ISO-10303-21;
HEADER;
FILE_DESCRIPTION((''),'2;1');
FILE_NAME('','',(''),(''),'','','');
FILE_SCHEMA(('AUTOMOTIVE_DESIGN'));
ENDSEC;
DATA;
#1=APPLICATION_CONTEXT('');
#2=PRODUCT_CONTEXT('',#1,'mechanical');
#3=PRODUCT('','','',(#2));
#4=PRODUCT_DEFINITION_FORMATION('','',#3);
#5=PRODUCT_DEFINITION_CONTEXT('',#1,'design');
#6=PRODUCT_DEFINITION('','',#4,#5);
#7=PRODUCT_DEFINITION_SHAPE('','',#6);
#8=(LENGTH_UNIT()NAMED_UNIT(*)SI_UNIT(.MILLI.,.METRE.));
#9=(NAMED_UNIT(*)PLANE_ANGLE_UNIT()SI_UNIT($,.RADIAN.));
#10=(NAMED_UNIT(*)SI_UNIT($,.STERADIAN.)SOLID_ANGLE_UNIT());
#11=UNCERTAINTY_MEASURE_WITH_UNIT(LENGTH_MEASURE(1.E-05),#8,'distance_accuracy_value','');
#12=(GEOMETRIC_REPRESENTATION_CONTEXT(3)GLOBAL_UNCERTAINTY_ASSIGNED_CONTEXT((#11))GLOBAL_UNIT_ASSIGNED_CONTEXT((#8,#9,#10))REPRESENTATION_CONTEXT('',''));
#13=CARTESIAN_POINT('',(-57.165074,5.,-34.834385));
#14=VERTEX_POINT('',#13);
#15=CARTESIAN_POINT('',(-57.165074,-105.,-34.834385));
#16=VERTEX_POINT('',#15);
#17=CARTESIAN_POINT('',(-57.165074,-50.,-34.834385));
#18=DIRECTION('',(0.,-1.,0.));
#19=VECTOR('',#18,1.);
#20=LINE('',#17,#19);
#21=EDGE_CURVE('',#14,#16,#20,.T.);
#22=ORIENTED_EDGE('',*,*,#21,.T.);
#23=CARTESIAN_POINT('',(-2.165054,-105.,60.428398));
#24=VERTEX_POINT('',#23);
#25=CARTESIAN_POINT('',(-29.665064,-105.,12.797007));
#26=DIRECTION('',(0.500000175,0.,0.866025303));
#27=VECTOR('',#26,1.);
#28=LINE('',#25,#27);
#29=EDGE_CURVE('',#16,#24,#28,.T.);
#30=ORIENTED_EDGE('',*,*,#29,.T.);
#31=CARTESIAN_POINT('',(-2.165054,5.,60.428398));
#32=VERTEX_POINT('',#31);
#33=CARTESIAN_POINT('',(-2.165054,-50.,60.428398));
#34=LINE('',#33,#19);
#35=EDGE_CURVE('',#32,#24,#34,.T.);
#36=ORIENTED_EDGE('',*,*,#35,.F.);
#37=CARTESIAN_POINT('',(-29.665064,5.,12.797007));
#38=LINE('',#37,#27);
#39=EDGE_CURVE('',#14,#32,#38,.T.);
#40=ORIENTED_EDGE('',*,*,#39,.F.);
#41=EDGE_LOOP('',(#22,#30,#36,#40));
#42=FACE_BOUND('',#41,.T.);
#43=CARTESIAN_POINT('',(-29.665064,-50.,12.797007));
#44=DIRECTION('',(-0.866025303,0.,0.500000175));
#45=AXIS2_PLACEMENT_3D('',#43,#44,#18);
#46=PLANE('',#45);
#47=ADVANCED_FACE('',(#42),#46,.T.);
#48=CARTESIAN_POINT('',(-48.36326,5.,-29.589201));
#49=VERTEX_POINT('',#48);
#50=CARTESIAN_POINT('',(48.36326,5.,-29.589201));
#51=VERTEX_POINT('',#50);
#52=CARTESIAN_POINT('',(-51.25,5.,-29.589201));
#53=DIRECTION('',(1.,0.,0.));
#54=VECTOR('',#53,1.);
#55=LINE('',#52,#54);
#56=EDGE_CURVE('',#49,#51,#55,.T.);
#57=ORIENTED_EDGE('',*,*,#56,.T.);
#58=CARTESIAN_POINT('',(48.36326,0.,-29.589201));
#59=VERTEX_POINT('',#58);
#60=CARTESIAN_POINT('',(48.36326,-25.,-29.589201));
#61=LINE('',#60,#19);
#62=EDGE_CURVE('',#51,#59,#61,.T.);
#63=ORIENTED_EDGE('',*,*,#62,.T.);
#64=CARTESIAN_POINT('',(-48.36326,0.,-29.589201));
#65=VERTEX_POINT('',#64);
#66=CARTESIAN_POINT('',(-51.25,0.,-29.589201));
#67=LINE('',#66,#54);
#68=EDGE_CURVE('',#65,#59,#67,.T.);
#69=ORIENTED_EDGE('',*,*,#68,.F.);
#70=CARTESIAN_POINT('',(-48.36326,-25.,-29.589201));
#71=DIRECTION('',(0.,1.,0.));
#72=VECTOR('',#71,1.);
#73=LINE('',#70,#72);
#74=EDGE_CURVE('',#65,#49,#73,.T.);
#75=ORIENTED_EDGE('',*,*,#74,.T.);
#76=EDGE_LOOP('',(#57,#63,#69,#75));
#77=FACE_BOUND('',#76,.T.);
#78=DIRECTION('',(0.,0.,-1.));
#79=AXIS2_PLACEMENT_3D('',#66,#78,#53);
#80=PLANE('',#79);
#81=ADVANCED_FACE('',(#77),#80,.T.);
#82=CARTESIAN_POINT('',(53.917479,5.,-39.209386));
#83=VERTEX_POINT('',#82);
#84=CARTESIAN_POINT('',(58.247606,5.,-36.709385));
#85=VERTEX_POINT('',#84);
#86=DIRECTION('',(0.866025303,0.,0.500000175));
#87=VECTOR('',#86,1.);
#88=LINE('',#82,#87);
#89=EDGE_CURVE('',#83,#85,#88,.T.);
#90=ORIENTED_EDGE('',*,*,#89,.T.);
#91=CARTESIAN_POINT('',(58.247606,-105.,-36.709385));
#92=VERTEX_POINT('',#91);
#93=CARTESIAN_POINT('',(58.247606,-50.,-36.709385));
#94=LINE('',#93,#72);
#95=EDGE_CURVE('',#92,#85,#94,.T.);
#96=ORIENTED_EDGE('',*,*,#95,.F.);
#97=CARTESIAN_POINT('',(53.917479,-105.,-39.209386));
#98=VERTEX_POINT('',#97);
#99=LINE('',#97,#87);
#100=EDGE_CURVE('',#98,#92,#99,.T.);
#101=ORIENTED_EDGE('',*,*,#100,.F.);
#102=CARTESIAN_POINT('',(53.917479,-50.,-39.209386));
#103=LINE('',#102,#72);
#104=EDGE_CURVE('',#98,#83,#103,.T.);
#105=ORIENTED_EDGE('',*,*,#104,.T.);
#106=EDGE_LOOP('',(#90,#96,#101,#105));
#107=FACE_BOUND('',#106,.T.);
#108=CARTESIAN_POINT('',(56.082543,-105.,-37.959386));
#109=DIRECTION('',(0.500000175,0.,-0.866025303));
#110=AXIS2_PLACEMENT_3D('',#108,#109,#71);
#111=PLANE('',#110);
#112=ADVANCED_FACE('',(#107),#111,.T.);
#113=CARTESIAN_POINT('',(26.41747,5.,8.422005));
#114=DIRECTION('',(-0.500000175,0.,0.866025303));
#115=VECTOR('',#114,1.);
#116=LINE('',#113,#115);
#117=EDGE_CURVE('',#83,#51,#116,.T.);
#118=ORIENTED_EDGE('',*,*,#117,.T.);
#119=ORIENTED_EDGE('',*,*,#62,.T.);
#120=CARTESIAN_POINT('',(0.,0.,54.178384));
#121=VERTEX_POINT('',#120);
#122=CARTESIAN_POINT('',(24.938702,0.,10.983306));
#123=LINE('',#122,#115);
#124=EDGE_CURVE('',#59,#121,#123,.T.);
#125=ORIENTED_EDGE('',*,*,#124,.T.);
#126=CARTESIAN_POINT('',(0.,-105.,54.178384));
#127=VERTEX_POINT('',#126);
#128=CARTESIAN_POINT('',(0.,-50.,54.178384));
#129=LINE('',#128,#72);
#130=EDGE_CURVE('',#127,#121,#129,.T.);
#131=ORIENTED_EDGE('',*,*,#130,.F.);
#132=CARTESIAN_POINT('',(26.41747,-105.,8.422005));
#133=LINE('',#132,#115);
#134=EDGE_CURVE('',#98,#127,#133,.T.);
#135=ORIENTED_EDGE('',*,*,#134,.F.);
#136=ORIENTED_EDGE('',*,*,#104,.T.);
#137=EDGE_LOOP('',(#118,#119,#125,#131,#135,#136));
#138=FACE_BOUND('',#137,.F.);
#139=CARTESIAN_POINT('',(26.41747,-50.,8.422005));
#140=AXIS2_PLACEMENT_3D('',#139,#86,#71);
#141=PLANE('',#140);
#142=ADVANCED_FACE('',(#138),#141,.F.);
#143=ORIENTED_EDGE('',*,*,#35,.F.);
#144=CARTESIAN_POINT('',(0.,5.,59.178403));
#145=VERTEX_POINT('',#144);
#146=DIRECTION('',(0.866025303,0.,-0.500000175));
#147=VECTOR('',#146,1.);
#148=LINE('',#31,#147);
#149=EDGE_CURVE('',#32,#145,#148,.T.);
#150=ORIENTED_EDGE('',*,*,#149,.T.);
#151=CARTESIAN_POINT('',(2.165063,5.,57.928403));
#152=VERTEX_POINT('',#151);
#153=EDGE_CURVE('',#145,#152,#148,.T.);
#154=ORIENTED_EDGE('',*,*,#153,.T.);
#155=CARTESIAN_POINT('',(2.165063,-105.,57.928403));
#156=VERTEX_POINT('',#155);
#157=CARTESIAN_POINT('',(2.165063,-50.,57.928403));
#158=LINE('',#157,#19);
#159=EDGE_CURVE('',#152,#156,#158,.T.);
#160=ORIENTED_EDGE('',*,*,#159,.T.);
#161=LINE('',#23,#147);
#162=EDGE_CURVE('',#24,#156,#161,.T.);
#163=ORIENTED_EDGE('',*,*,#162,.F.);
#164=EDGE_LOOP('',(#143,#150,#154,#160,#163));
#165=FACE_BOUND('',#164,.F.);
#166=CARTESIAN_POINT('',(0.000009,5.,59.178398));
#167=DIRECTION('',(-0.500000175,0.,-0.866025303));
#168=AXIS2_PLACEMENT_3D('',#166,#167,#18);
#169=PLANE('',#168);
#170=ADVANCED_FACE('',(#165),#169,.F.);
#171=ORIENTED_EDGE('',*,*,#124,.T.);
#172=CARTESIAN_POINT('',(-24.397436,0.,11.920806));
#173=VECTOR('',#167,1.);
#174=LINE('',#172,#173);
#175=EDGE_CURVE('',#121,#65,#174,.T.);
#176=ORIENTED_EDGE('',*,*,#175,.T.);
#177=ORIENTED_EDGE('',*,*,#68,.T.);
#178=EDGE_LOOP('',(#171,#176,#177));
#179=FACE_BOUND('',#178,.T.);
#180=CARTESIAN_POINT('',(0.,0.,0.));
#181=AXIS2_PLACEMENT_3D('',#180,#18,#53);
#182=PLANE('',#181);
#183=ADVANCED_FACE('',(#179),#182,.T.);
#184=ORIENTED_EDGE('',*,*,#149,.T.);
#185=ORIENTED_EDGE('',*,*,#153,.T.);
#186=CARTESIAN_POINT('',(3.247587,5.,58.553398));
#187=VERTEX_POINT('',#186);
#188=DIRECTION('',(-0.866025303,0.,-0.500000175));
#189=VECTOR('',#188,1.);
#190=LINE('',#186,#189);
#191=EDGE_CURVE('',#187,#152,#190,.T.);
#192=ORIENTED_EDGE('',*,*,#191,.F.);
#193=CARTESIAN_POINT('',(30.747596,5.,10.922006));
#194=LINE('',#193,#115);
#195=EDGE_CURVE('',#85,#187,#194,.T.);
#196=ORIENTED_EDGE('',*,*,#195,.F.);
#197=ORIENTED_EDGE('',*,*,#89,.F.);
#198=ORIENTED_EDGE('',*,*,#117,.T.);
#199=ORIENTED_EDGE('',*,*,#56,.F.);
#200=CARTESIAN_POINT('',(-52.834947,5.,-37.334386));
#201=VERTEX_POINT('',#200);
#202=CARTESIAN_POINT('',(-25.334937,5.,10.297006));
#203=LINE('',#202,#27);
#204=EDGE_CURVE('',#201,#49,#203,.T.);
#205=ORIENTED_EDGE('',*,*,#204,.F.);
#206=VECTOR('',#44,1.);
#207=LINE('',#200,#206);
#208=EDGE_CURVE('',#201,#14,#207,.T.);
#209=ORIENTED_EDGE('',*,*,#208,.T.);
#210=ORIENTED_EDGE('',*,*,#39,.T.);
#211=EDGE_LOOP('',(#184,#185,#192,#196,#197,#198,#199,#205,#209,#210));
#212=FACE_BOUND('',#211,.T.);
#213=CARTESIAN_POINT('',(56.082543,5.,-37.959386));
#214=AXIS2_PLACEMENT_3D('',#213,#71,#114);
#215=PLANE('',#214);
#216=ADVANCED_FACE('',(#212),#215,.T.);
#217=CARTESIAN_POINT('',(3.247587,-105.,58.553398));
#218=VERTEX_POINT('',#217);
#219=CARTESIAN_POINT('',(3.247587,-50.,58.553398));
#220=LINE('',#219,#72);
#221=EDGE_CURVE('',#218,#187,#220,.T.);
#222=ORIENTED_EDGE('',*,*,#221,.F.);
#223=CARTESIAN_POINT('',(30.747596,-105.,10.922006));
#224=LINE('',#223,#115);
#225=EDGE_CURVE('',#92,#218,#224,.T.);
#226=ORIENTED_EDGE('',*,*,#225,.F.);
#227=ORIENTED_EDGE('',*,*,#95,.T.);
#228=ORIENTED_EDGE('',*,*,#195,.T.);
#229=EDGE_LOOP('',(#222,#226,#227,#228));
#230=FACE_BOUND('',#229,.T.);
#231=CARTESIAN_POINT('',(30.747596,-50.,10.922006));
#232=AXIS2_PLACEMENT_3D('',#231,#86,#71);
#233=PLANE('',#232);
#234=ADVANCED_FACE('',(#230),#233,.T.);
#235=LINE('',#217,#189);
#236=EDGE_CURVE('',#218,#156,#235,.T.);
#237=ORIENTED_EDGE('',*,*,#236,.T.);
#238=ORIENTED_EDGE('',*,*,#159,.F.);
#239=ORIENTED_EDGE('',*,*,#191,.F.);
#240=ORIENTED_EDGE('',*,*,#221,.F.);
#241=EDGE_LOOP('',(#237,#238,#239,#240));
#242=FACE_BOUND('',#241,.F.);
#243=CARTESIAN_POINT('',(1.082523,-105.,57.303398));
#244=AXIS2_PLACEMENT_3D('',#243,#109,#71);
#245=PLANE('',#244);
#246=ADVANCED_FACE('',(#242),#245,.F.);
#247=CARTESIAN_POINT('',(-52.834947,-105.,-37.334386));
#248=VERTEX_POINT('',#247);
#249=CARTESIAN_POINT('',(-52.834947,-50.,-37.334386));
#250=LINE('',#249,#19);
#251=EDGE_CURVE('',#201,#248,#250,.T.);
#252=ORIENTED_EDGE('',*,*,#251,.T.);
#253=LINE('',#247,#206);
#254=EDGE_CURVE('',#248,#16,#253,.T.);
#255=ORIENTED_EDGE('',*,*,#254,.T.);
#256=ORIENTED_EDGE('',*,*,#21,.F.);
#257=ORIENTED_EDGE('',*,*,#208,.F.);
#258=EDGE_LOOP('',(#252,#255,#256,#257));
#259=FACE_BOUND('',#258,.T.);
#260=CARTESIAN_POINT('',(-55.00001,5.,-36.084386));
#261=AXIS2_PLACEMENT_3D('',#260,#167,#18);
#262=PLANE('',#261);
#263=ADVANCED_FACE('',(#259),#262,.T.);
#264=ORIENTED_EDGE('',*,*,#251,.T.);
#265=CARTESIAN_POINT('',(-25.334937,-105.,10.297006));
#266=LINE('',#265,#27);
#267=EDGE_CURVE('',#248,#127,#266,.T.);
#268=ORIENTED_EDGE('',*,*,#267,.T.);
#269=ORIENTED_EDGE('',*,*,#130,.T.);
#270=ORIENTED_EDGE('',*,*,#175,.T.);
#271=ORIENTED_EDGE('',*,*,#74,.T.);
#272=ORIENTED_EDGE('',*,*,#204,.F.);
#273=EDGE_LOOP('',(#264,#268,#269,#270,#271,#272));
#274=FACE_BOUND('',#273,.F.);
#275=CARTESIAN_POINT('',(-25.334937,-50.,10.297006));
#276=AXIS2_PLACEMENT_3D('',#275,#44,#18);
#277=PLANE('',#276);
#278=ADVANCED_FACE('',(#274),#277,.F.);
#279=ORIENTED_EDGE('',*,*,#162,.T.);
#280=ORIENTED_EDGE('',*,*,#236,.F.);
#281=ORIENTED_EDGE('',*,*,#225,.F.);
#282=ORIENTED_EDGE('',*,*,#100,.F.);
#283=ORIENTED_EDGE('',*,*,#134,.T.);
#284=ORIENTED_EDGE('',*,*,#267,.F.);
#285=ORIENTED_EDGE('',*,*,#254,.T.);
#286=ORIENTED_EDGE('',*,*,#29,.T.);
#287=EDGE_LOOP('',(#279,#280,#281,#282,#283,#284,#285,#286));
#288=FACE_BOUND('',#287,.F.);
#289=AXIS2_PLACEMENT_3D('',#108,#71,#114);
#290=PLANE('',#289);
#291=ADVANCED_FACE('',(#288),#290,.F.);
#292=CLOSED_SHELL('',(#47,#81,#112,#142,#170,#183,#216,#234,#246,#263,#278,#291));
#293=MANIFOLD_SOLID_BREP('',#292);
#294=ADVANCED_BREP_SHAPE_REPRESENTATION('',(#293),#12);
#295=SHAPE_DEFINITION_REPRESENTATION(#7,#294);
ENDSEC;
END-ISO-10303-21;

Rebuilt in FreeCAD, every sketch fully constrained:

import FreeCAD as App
import Part
import Sketcher

V = App.Vector
Q = App.Units.Quantity


def add_polygon(sketch, points):
    """Adds a closed chain of lines whose ends are joined by coincident constraints."""
    first, n = sketch.GeometryCount, len(points)
    for a, b in zip(points, points[1:] + points[:1]):
        sketch.addGeometry(Part.LineSegment(App.Vector(*a, 0), App.Vector(*b, 0)), False)
    for i in range(n):
        sketch.addConstraint(Sketcher.Constraint("Coincident", first + i, 2, first + (i + 1) % n, 1))

doc = App.newDocument("Part")
body = doc.addObject("PartDesign::Body", "Body")

sketch1 = body.newObject("Sketcher::SketchObject", "Sketch")
sketch1.AttachmentSupport = (doc.getObject("XZ_Plane"), [""])
sketch1.MapMode = "FlatFace"
add_polygon(sketch1, [(51, -30), (0, 59), (-51, -30)])
sketch1.addConstraint([
    Sketcher.Constraint("Horizontal", 2),
    Sketcher.Constraint("PointOnObject", 0, 2, -2),
    Sketcher.Constraint("Equal", 0, 1),
    Sketcher.Constraint("Angle", 0, Q("120 deg")),
    Sketcher.Constraint("DistanceX", 2, 1, 2, 2, 102.5),
    Sketcher.Constraint("DistanceY", 1, 2, -1, 1, 29.589201),
])
pad1 = body.newObject("PartDesign::Pad", "Pad")
pad1.Profile = sketch1
pad1.Length = 5
pad1.Reversed = True

sketch2 = body.newObject("Sketcher::SketchObject", "Sketch001")
sketch2.Placement = App.Placement(V(-25.625, 0, 14.794601), App.Rotation(V(0, -1, 0), V(0.500000175, 0, 0.866025303), V(-0.866025303, 0, 0.500000175), "ZXY"))
add_polygon(sketch2, [(-5, 51), (-5, -59), (105, -59), (105, 51)])
sketch2.addConstraint([
    Sketcher.Constraint("Vertical", 0),
    Sketcher.Constraint("Horizontal", 1),
    Sketcher.Constraint("Vertical", 2),
    Sketcher.Constraint("Horizontal", 3),
    Sketcher.Constraint("Equal", 3, 0),
    Sketcher.Constraint("DistanceX", 1, 1, 1, 2, 110.0),
    Sketcher.Constraint("DistanceX", 0, 2, -1, 1, 5.0),
    Sketcher.Constraint("DistanceY", 0, 2, -1, 1, 58.75),
])
pad2 = body.newObject("PartDesign::Pad", "Pad001")
pad2.Profile = sketch2
pad2.Length = 5
pad2.Midplane = True

sketch3 = body.newObject("Sketcher::SketchObject", "Sketch002")
sketch3.Placement = App.Placement(V(25.625, 0, 14.794601), App.Rotation(V(0, 1, 0), V(-0.500000175, 0, 0.866025303), V(0.866025303, 0, 0.500000175), "ZXY"))
add_polygon(sketch3, [(-105, 49), (-105, -61), (5, -61), (5, 49)])
sketch3.addConstraint([
    Sketcher.Constraint("Vertical", 0),
    Sketcher.Constraint("Horizontal", 1),
    Sketcher.Constraint("Vertical", 2),
    Sketcher.Constraint("Horizontal", 3),
    Sketcher.Constraint("Equal", 3, 0),
    Sketcher.Constraint("DistanceX", 1, 1, 1, 2, 110.0),
    Sketcher.Constraint("DistanceX", 0, 2, -1, 1, 105.0),
    Sketcher.Constraint("DistanceY", 0, 2, -1, 1, 60.915064),
])
pad3 = body.newObject("PartDesign::Pad", "Pad002")
pad3.Profile = sketch3
pad3.Length = 5
pad3.Midplane = True

doc.recompute()
